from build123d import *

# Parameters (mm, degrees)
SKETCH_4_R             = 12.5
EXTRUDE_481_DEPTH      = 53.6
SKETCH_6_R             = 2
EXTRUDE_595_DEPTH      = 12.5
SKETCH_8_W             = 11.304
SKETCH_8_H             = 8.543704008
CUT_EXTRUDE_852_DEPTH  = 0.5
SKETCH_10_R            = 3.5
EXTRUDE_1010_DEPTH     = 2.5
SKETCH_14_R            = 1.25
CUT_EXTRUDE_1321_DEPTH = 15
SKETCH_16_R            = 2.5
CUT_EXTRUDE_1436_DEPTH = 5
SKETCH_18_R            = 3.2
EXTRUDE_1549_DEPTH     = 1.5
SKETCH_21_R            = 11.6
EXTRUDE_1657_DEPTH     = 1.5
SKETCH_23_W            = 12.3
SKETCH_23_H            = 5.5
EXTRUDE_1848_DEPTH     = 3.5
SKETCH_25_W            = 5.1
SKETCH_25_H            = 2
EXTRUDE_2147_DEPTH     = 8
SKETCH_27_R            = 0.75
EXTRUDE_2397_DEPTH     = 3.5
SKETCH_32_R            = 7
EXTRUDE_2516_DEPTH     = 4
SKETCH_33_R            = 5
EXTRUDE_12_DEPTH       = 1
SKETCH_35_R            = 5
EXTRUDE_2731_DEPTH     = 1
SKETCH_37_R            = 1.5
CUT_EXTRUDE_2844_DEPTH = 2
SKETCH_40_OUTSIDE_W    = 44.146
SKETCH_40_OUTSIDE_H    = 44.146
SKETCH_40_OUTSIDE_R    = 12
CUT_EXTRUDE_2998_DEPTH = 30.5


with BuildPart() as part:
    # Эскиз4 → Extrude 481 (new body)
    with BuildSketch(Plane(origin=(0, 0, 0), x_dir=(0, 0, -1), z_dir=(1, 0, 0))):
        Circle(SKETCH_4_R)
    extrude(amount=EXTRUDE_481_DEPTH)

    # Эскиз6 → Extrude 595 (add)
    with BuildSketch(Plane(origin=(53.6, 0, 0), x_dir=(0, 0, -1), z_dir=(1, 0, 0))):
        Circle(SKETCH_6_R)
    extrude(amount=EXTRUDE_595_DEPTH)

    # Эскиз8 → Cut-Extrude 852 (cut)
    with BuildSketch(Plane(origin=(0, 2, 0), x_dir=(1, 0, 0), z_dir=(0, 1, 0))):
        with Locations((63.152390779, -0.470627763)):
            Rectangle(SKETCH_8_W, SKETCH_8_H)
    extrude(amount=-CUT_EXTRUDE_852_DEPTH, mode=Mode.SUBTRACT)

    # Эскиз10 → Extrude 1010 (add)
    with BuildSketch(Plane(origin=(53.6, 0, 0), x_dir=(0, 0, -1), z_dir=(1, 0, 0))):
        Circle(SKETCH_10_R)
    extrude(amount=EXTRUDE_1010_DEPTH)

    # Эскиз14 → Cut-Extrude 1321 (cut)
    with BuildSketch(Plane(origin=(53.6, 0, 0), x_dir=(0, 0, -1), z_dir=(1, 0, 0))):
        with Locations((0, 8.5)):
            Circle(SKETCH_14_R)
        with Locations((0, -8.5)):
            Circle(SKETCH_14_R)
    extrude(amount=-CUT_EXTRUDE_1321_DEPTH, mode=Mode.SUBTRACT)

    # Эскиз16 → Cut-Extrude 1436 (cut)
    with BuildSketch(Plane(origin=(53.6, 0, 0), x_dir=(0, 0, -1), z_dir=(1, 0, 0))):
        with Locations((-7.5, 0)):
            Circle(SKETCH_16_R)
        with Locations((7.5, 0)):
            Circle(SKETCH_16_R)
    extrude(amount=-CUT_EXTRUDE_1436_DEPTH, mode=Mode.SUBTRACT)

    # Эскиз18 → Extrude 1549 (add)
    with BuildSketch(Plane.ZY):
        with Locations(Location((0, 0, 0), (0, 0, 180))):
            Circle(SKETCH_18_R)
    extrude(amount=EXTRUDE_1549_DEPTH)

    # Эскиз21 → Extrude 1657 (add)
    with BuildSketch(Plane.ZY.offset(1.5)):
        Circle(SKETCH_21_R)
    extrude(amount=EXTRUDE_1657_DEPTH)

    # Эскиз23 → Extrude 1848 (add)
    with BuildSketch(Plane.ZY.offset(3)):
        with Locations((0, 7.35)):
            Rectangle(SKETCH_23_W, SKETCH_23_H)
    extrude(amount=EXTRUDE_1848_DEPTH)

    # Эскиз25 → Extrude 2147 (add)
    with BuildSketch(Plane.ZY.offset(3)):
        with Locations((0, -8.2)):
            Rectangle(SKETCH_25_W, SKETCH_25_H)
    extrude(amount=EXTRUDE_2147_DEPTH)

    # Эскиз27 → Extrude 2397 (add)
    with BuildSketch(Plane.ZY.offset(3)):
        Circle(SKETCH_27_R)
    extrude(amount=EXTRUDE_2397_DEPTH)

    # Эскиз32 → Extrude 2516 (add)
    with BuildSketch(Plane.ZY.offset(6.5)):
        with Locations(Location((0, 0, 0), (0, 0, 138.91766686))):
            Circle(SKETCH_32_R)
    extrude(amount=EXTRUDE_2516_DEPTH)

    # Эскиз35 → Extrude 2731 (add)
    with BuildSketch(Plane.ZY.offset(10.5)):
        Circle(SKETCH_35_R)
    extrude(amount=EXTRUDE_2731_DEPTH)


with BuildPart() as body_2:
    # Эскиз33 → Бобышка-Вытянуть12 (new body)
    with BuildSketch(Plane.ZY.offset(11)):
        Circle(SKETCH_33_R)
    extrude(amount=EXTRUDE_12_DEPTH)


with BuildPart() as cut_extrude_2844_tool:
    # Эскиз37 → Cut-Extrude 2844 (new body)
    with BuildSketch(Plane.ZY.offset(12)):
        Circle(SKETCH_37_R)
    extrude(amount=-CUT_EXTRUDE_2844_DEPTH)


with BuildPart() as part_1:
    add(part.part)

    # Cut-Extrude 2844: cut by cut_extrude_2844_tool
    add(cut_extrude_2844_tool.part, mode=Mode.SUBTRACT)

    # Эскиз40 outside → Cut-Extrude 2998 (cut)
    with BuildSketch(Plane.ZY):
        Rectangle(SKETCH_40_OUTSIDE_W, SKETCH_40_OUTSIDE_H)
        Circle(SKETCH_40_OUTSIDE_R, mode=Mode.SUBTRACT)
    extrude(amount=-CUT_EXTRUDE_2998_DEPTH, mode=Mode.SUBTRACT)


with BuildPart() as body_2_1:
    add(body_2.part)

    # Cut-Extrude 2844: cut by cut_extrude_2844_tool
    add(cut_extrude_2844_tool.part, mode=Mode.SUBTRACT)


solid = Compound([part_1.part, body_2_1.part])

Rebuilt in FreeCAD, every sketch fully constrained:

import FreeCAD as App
import Part
import Sketcher
Q = App.Units.Quantity

doc = App.newDocument("Part")
params = doc.addObject("Spreadsheet::Sheet", "Params")
for row, (alias, value) in enumerate([
    ("sketch1_diameter", "25 mm"),
    ("pad1_length", "53.6 mm"),
    ("sketch2_diameter", "4 mm"),
    ("pad2_length", "12.5 mm"),
    ("pocket1_length", "0.5 mm"),
    ("sketch4_diameter", "7 mm"),
    ("pad3_length", "2.5 mm"),
    ("sketch5_diameter", "2.5 mm"),
    ("pocket2_length", "15 mm"),
    ("sketch6_diameter", "5 mm"),
    ("pocket3_length", "5 mm"),
    ("sketch7_diameter", "6.4 mm"),
    ("pad4_length", "1.5 mm"),
    ("sketch8_diameter", "23.2 mm"),
    ("pad5_length", "1.5 mm"),
    ("sketch9_width", "5.5 mm"),
    ("sketch9_height", "12.3 mm"),
    ("pad6_length", "3.5 mm"),
    ("sketch10_width", "2 mm"),
    ("sketch10_height", "5.1 mm"),
    ("pad7_length", "8 mm"),
    ("sketch11_diameter", "1.5 mm"),
    ("pad8_length", "3.5 mm"),
    ("sketch12_diameter", "14 mm"),
    ("pad9_length", "4 mm"),
    ("sketch13_diameter", "10 mm"),
    ("pad10_length", "1 mm"),
    ("sketch14_diameter", "10 mm"),
    ("pad11_length", "1 mm"),
    ("sketch15_diameter", "3 mm"),
    ("pad12_length", "2 mm"),
    ("sketch16_diameter", "24 mm"),
    ("pocket4_length", "30.5 mm"),
], start=1):
    params.set(f"A{row}", alias)
    params.set(f"B{row}", "=" + value)
    params.setAlias(f"B{row}", alias)

body = doc.addObject("PartDesign::Body", "Body")

# Sketch on YZ plane
sketch1 = body.newObject("Sketcher::SketchObject", "Sketch")
sketch1.AttachmentSupport = (doc.getObject("YZ_Plane"), [""])
sketch1.MapMode = "FlatFace"
sketch1.addGeometry(Part.Circle(App.Vector(0, 0, 0), App.Vector(0, 0, 1), 12), False)
sketch1.addConstraint([
    Sketcher.Constraint("Coincident", 0, 3, -1, 1),
    Sketcher.Constraint("Diameter", 0, Q("25 mm")),
])
sketch1.setExpression("Constraints[1]", "Params.sketch1_diameter")
pad1 = body.newObject("PartDesign::Pad", "Pad")
pad1.Profile = sketch1
pad1.setExpression("Length", "Params.pad1_length")

# Sketch on YZ plane
sketch2 = body.newObject("Sketcher::SketchObject", "Sketch001")
sketch2.AttachmentSupport = (doc.getObject("YZ_Plane"), [""])
sketch2.MapMode = "FlatFace"
sketch2.AttachmentOffset = App.Placement(App.Vector(0, 0, 53.6), App.Rotation())
sketch2.addGeometry(Part.Circle(App.Vector(0, 0, 0), App.Vector(0, 0, 1), 2), False)
sketch2.addConstraint([
    Sketcher.Constraint("Coincident", 0, 3, -1, 1),
    Sketcher.Constraint("Diameter", 0, Q("4 mm")),
])
sketch2.setExpression("Constraints[1]", "Params.sketch2_diameter")
pad2 = body.newObject("PartDesign::Pad", "Pad001")
pad2.Profile = sketch2
pad2.setExpression("Length", "Params.pad2_length")

# Sketch on XZ plane
sketch3 = body.newObject("Sketcher::SketchObject", "Sketch002")
sketch3.AttachmentSupport = (doc.getObject("XZ_Plane"), [""])
sketch3.MapMode = "FlatFace"
sketch3.AttachmentOffset = App.Placement(App.Vector(0, 0, -2), App.Rotation())
sketch3.addGeometry([
    Part.LineSegment(App.Vector(58, -4, 0), App.Vector(58, 5, 0)),
    Part.LineSegment(App.Vector(58, 5, 0), App.Vector(69, 5, 0)),
    Part.LineSegment(App.Vector(69, 5, 0), App.Vector(69, -4, 0)),
    Part.LineSegment(App.Vector(69, -4, 0), App.Vector(58, -4, 0)),
], False)
sketch3.addConstraint([
    Sketcher.Constraint("Coincident", 0, 2, 1, 1),
    Sketcher.Constraint("Coincident", 1, 2, 2, 1),
    Sketcher.Constraint("Coincident", 2, 2, 3, 1),
    Sketcher.Constraint("Coincident", 3, 2, 0, 1),
    Sketcher.Constraint("Vertical", 0),
    Sketcher.Constraint("Horizontal", 1),
    Sketcher.Constraint("Vertical", 2),
    Sketcher.Constraint("Horizontal", 3),
    Sketcher.Constraint("DistanceX", 1, 1, 1, 2, Q("11.304 mm")),
    Sketcher.Constraint("DistanceY", 0, 1, 0, 2, Q("8.543704 mm")),
    Sketcher.Constraint("DistanceX", -1, 1, 0, 2, Q("57.500391 mm")),
    Sketcher.Constraint("DistanceY", -1, 1, 0, 2, Q("4.74248 mm")),
])
pocket1 = body.newObject("PartDesign::Pocket", "Pocket")
pocket1.Profile = sketch3
pocket1.setExpression("Length", "Params.pocket1_length")
pocket1.Reversed = True

# Sketch on YZ plane
sketch4 = body.newObject("Sketcher::SketchObject", "Sketch003")
sketch4.AttachmentSupport = (doc.getObject("YZ_Plane"), [""])
sketch4.MapMode = "FlatFace"
sketch4.AttachmentOffset = App.Placement(App.Vector(0, 0, 53.6), App.Rotation())
sketch4.addGeometry(Part.Circle(App.Vector(0, 0, 0), App.Vector(0, 0, 1), 3.5), False)
sketch4.addConstraint([
    Sketcher.Constraint("Coincident", 0, 3, -1, 1),
    Sketcher.Constraint("Diameter", 0, Q("7 mm")),
])
sketch4.setExpression("Constraints[1]", "Params.sketch4_diameter")
pad3 = body.newObject("PartDesign::Pad", "Pad002")
pad3.Profile = sketch4
pad3.setExpression("Length", "Params.pad3_length")

# Sketch on YZ plane
sketch5 = body.newObject("Sketcher::SketchObject", "Sketch004")
sketch5.AttachmentSupport = (doc.getObject("YZ_Plane"), [""])
sketch5.MapMode = "FlatFace"
sketch5.AttachmentOffset = App.Placement(App.Vector(0, 0, 53.6), App.Rotation())
sketch5.addGeometry([
    Part.Circle(App.Vector(8.5, 0, 0), App.Vector(0, 0, 1), 1.2),
    Part.Circle(App.Vector(-8.5, 0, 0), App.Vector(0, 0, 1), 1.2),
], False)
sketch5.addConstraint([
    Sketcher.Constraint("Equal", 0, 1),
    Sketcher.Constraint("Symmetric", 0, 3, 1, 3, -1, 1),
    Sketcher.Constraint("PointOnObject", 0, 3, -1),
    Sketcher.Constraint("Diameter", 0, Q("2.5 mm")),
    Sketcher.Constraint("DistanceX", 1, 3, 0, 3, Q("17 mm")),
])
sketch5.setExpression("Constraints[3]", "Params.sketch5_diameter")
pocket2 = body.newObject("PartDesign::Pocket", "Pocket001")
pocket2.Profile = sketch5
pocket2.setExpression("Length", "Params.pocket2_length")

# Sketch on YZ plane
sketch6 = body.newObject("Sketcher::SketchObject", "Sketch005")
sketch6.AttachmentSupport = (doc.getObject("YZ_Plane"), [""])
sketch6.MapMode = "FlatFace"
sketch6.AttachmentOffset = App.Placement(App.Vector(0, 0, 53.6), App.Rotation())
sketch6.addGeometry([
    Part.Circle(App.Vector(0, 7.5, 0), App.Vector(0, 0, 1), 2.5),
    Part.Circle(App.Vector(0, -7.5, 0), App.Vector(0, 0, 1), 2.5),
], False)
sketch6.addConstraint([
    Sketcher.Constraint("Equal", 0, 1),
    Sketcher.Constraint("Symmetric", 0, 3, 1, 3, -1, 1),
    Sketcher.Constraint("PointOnObject", 0, 3, -2),
    Sketcher.Constraint("Diameter", 0, Q("5 mm")),
    Sketcher.Constraint("DistanceY", 1, 3, 0, 3, Q("15 mm")),
])
sketch6.setExpression("Constraints[3]", "Params.sketch6_diameter")
pocket3 = body.newObject("PartDesign::Pocket", "Pocket002")
pocket3.Profile = sketch6
pocket3.setExpression("Length", "Params.pocket3_length")

# Sketch on YZ plane
sketch7 = body.newObject("Sketcher::SketchObject", "Sketch006")
sketch7.AttachmentSupport = (doc.getObject("YZ_Plane"), [""])
sketch7.MapMode = "FlatFace"
sketch7.addGeometry(Part.Circle(App.Vector(0, 0, 0), App.Vector(0, 0, 1), 3.2), False)
sketch7.addConstraint([
    Sketcher.Constraint("Coincident", 0, 3, -1, 1),
    Sketcher.Constraint("Diameter", 0, Q("6.4 mm")),
])
sketch7.setExpression("Constraints[1]", "Params.sketch7_diameter")
pad4 = body.newObject("PartDesign::Pad", "Pad003")
pad4.Profile = sketch7
pad4.setExpression("Length", "Params.pad4_length")
pad4.Reversed = True

# Sketch on YZ plane
sketch8 = body.newObject("Sketcher::SketchObject", "Sketch007")
sketch8.AttachmentSupport = (doc.getObject("YZ_Plane"), [""])
sketch8.MapMode = "FlatFace"
sketch8.AttachmentOffset = App.Placement(App.Vector(0, 0, -1.5), App.Rotation())
sketch8.addGeometry(Part.Circle(App.Vector(0, 0, 0), App.Vector(0, 0, 1), 12), False)
sketch8.addConstraint([
    Sketcher.Constraint("Coincident", 0, 3, -1, 1),
    Sketcher.Constraint("Diameter", 0, Q("23.2 mm")),
])
sketch8.setExpression("Constraints[1]", "Params.sketch8_diameter")
pad5 = body.newObject("PartDesign::Pad", "Pad004")
pad5.Profile = sketch8
pad5.setExpression("Length", "Params.pad5_length")
pad5.Reversed = True

# Sketch on YZ plane
sketch9 = body.newObject("Sketcher::SketchObject", "Sketch008")
sketch9.AttachmentSupport = (doc.getObject("YZ_Plane"), [""])
sketch9.MapMode = "FlatFace"
sketch9.AttachmentOffset = App.Placement(App.Vector(0, 0, -3), App.Rotation())
sketch9.addGeometry([
    Part.LineSegment(App.Vector(10, -6, 0), App.Vector(5, -6, 0)),
    Part.LineSegment(App.Vector(5, -6, 0), App.Vector(5, 6, 0)),
    Part.LineSegment(App.Vector(5, 6, 0), App.Vector(10, 6, 0)),
    Part.LineSegment(App.Vector(10, 6, 0), App.Vector(10, -6, 0)),
], False)
sketch9.addConstraint([
    Sketcher.Constraint("Coincident", 0, 2, 1, 1),
    Sketcher.Constraint("Coincident", 1, 2, 2, 1),
    Sketcher.Constraint("Coincident", 2, 2, 3, 1),
    Sketcher.Constraint("Coincident", 3, 2, 0, 1),
    Sketcher.Constraint("Horizontal", 0),
    Sketcher.Constraint("Vertical", 1),
    Sketcher.Constraint("Horizontal", 2),
    Sketcher.Constraint("Vertical", 3),
    Sketcher.Constraint("DistanceX", 0, 2, 0, 1, Q("5.5 mm")),
    Sketcher.Constraint("DistanceY", 1, 1, 1, 2, Q("12.3 mm")),
    Sketcher.Constraint("DistanceX", -1, 1, 0, 2, Q("4.6 mm")),
    Sketcher.Constraint("DistanceY", 0, 2, -1, 1, Q("6.15 mm")),
])
sketch9.setExpression("Constraints[8]", "Params.sketch9_width")
sketch9.setExpression("Constraints[9]", "Params.sketch9_height")
pad6 = body.newObject("PartDesign::Pad", "Pad005")
pad6.Profile = sketch9
pad6.setExpression("Length", "Params.pad6_length")
pad6.Reversed = True

# Sketch on YZ plane
sketch10 = body.newObject("Sketcher::SketchObject", "Sketch009")
sketch10.AttachmentSupport = (doc.getObject("YZ_Plane"), [""])
sketch10.MapMode = "FlatFace"
sketch10.AttachmentOffset = App.Placement(App.Vector(0, 0, -3), App.Rotation())
sketch10.addGeometry([
    Part.LineSegment(App.Vector(-7.2, -2.5, 0), App.Vector(-9.2, -2.5, 0)),
    Part.LineSegment(App.Vector(-9.2, -2.5, 0), App.Vector(-9.2, 2.5, 0)),
    Part.LineSegment(App.Vector(-9.2, 2.5, 0), App.Vector(-7.2, 2.5, 0)),
    Part.LineSegment(App.Vector(-7.2, 2.5, 0), App.Vector(-7.2, -2.5, 0)),
], False)
sketch10.addConstraint([
    Sketcher.Constraint("Coincident", 0, 2, 1, 1),
    Sketcher.Constraint("Coincident", 1, 2, 2, 1),
    Sketcher.Constraint("Coincident", 2, 2, 3, 1),
    Sketcher.Constraint("Coincident", 3, 2, 0, 1),
    Sketcher.Constraint("Horizontal", 0),
    Sketcher.Constraint("Vertical", 1),
    Sketcher.Constraint("Horizontal", 2),
    Sketcher.Constraint("Vertical", 3),
    Sketcher.Constraint("DistanceX", 0, 2, 0, 1, Q("2 mm")),
    Sketcher.Constraint("DistanceY", 1, 1, 1, 2, Q("5.1 mm")),
    Sketcher.Constraint("DistanceX", 0, 2, -1, 1, Q("9.2 mm")),
    Sketcher.Constraint("DistanceY", 0, 2, -1, 1, Q("2.55 mm")),
])
sketch10.setExpression("Constraints[8]", "Params.sketch10_width")
sketch10.setExpression("Constraints[9]", "Params.sketch10_height")
pad7 = body.newObject("PartDesign::Pad", "Pad006")
pad7.Profile = sketch10
pad7.setExpression("Length", "Params.pad7_length")
pad7.Reversed = True

# Sketch on YZ plane
sketch11 = body.newObject("Sketcher::SketchObject", "Sketch010")
sketch11.AttachmentSupport = (doc.getObject("YZ_Plane"), [""])
sketch11.MapMode = "FlatFace"
sketch11.AttachmentOffset = App.Placement(App.Vector(0, 0, -3), App.Rotation())
sketch11.addGeometry(Part.Circle(App.Vector(0, 0, 0), App.Vector(0, 0, 1), 0.8), False)
sketch11.addConstraint([
    Sketcher.Constraint("Coincident", 0, 3, -1, 1),
    Sketcher.Constraint("Diameter", 0, Q("1.5 mm")),
])
sketch11.setExpression("Constraints[1]", "Params.sketch11_diameter")
pad8 = body.newObject("PartDesign::Pad", "Pad007")
pad8.Profile = sketch11
pad8.setExpression("Length", "Params.pad8_length")
pad8.Reversed = True

# Sketch on YZ plane
sketch12 = body.newObject("Sketcher::SketchObject", "Sketch011")
sketch12.AttachmentSupport = (doc.getObject("YZ_Plane"), [""])
sketch12.MapMode = "FlatFace"
sketch12.AttachmentOffset = App.Placement(App.Vector(0, 0, -6.5), App.Rotation())
sketch12.addGeometry(Part.Circle(App.Vector(0, 0, 0), App.Vector(0, 0, 1), 7), False)
sketch12.addConstraint([
    Sketcher.Constraint("Coincident", 0, 3, -1, 1),
    Sketcher.Constraint("Diameter", 0, Q("14 mm")),
])
sketch12.setExpression("Constraints[1]", "Params.sketch12_diameter")
pad9 = body.newObject("PartDesign::Pad", "Pad008")
pad9.Profile = sketch12
pad9.setExpression("Length", "Params.pad9_length")
pad9.Reversed = True

# Sketch on YZ plane
sketch13 = body.newObject("Sketcher::SketchObject", "Sketch012")
sketch13.AttachmentSupport = (doc.getObject("YZ_Plane"), [""])
sketch13.MapMode = "FlatFace"
sketch13.AttachmentOffset = App.Placement(App.Vector(0, 0, -10.5), App.Rotation())
sketch13.addGeometry(Part.Circle(App.Vector(0, 0, 0), App.Vector(0, 0, 1), 5), False)
sketch13.addConstraint([
    Sketcher.Constraint("Coincident", 0, 3, -1, 1),
    Sketcher.Constraint("Diameter", 0, Q("10 mm")),
])
sketch13.setExpression("Constraints[1]", "Params.sketch13_diameter")
pad10 = body.newObject("PartDesign::Pad", "Pad009")
pad10.Profile = sketch13
pad10.setExpression("Length", "Params.pad10_length")
pad10.Reversed = True
body2 = doc.addObject("PartDesign::Body", "Body001")

# Sketch on YZ plane
sketch14 = body2.newObject("Sketcher::SketchObject", "Sketch013")
sketch14.AttachmentSupport = (doc.getObject("YZ_Plane001"), [""])
sketch14.MapMode = "FlatFace"
sketch14.AttachmentOffset = App.Placement(App.Vector(0, 0, -11), App.Rotation())
sketch14.addGeometry(Part.Circle(App.Vector(0, 0, 0), App.Vector(0, 0, 1), 5), False)
sketch14.addConstraint([
    Sketcher.Constraint("Coincident", 0, 3, -1, 1),
    Sketcher.Constraint("Diameter", 0, Q("10 mm")),
])
sketch14.setExpression("Constraints[1]", "Params.sketch14_diameter")
pad11 = body2.newObject("PartDesign::Pad", "Pad010")
pad11.Profile = sketch14
pad11.setExpression("Length", "Params.pad11_length")
pad11.Reversed = True
body3 = doc.addObject("PartDesign::Body", "Body002")

# Sketch on YZ plane
sketch15 = body3.newObject("Sketcher::SketchObject", "Sketch014")
sketch15.AttachmentSupport = (doc.getObject("YZ_Plane002"), [""])
sketch15.MapMode = "FlatFace"
sketch15.AttachmentOffset = App.Placement(App.Vector(0, 0, -12), App.Rotation())
sketch15.addGeometry(Part.Circle(App.Vector(0, 0, 0), App.Vector(0, 0, 1), 1.5), False)
sketch15.addConstraint([
    Sketcher.Constraint("Coincident", 0, 3, -1, 1),
    Sketcher.Constraint("Diameter", 0, Q("3 mm")),
])
sketch15.setExpression("Constraints[1]", "Params.sketch15_diameter")
pad12 = body3.newObject("PartDesign::Pad", "Pad011")
pad12.Profile = sketch15
pad12.setExpression("Length", "Params.pad12_length")
doc.recompute()

body4 = doc.addObject("PartDesign::Body", "Body003")
body4.BaseFeature = body3
boolean = body.newObject("PartDesign::Boolean", "Boolean")
boolean.Type = "Cut"
boolean.addObjects([body4])
doc.recompute()

# Sketch on YZ plane
sketch16 = body.newObject("Sketcher::SketchObject", "Sketch015")
sketch16.AttachmentSupport = (doc.getObject("YZ_Plane"), [""])
sketch16.MapMode = "FlatFace"
sketch16.addGeometry([
    Part.LineSegment(App.Vector(22, -22, 0), App.Vector(-22, -22, 0)),  # 0
    Part.LineSegment(App.Vector(-22, -22, 0), App.Vector(-22, 22, 0)),  # 1
    Part.LineSegment(App.Vector(-22, 22, 0), App.Vector(22, 22, 0)),  # 2
    Part.LineSegment(App.Vector(22, 22, 0), App.Vector(22, -22, 0)),  # 3
    Part.Circle(App.Vector(0, 0, 0), App.Vector(0, 0, 1), 12),  # 4
], False)
sketch16.addConstraint([
    Sketcher.Constraint("Coincident", 0, 2, 1, 1),
    Sketcher.Constraint("Coincident", 1, 2, 2, 1),
    Sketcher.Constraint("Coincident", 2, 2, 3, 1),
    Sketcher.Constraint("Coincident", 3, 2, 0, 1),
    Sketcher.Constraint("Horizontal", 0),
    Sketcher.Constraint("Vertical", 1),
    Sketcher.Constraint("Horizontal", 2),
    Sketcher.Constraint("Vertical", 3),
    Sketcher.Constraint("Coincident", 4, 3, -1, 1),
    Sketcher.Constraint("Symmetric", 0, 2, 2, 2, -1, 1),
    Sketcher.Constraint("Equal", 2, 1),
    Sketcher.Constraint("Diameter", 4, Q("24 mm")),
    Sketcher.Constraint("DistanceX", 0, 2, 0, 1, Q("44.146 mm")),
])
sketch16.setExpression("Constraints[11]", "Params.sketch16_diameter")
pocket4 = body.newObject("PartDesign::Pocket", "Pocket003")
pocket4.Profile = sketch16
pocket4.setExpression("Length", "Params.pocket4_length")
pocket4.Reversed = True
doc.recompute()

boolean2 = body2.newObject("PartDesign::Boolean", "Boolean001")
boolean2.Type = "Cut"
boolean2.addObjects([body3])

doc.recompute()
